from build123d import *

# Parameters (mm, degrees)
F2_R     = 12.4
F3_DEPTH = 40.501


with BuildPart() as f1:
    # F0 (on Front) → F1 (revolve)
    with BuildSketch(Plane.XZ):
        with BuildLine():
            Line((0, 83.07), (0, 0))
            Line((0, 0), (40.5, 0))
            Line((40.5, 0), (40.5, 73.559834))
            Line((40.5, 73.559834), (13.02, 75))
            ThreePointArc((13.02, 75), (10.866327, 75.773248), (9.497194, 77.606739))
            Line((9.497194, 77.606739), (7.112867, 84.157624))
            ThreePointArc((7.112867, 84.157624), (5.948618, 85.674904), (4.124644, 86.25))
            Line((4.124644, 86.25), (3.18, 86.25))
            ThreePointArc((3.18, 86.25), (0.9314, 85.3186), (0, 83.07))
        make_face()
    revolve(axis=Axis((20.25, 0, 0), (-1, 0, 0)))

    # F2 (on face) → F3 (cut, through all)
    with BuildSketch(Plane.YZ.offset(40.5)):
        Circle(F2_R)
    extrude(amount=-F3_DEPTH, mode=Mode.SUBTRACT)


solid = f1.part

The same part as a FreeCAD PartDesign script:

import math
import FreeCAD as App
import Part
import Sketcher
Q = App.Units.Quantity

doc = App.newDocument("Part")
body = doc.addObject("PartDesign::Body", "Body")

# Sketch on XZ plane
sketch1 = body.newObject("Sketcher::SketchObject", "Sketch")
sketch1.AttachmentSupport = (doc.getObject("XZ_Plane"), [""])
sketch1.MapMode = "FlatFace"
sketch1.addGeometry([
    Part.LineSegment(App.Vector(0, 83.07, 0), App.Vector(0, 0, 0)),  # 0
    Part.LineSegment(App.Vector(0, 0, 0), App.Vector(40.5, 0, 0)),  # 1
    Part.LineSegment(App.Vector(40.5, 0, 0), App.Vector(40.5, 73.559834, 0)),  # 2
    Part.LineSegment(App.Vector(40.5, 73.559834, 0), App.Vector(13.02, 75, 0)),  # 3
    Part.ArcOfCircle(Part.Circle(App.Vector(13.227775, 78.964561, 0), App.Vector(0, 0, 1), 3.970002), math.radians(-159.999981), math.radians(-93.000012)),  # 4
    Part.LineSegment(App.Vector(9.497194, 77.606739, 0), App.Vector(7.112867, 84.157624, 0)),  # 5
    Part.ArcOfCircle(Part.Circle(App.Vector(4.124647, 83.070003, 0), App.Vector(0, 0, 1), 3.179997), math.radians(19.99996), math.radians(90.000047)),  # 6
    Part.LineSegment(App.Vector(4.124644, 86.25, 0), App.Vector(3.18, 86.25, 0)),  # 7
    Part.ArcOfCircle(Part.Circle(App.Vector(3.179999, 83.070001, 0), App.Vector(0, 0, 1), 3.179999), math.radians(89.999973), math.radians(180.000027)),  # 8
], False)
sketch1.addConstraint([
    Sketcher.Constraint("Coincident", 0, 2, 1, 1),
    Sketcher.Constraint("Coincident", 1, 2, 2, 1),
    Sketcher.Constraint("Coincident", 2, 2, 3, 1),
    Sketcher.Constraint("Tangent", 3, 2, 4, 2),
    Sketcher.Constraint("Tangent", 4, 1, 5, 1),
    Sketcher.Constraint("Tangent", 5, 2, 6, 1),
    Sketcher.Constraint("Tangent", 6, 2, 7, 1),
    Sketcher.Constraint("Tangent", 7, 2, 8, 1),
    Sketcher.Constraint("Tangent", 8, 2, 0, 1),
    Sketcher.Constraint("Vertical", 0),
    Sketcher.Constraint("Horizontal", 1),
    Sketcher.Constraint("Vertical", 2),
    Sketcher.Constraint("Horizontal", 7),
    Sketcher.Constraint("Coincident", 0, 2, -1, 1),
    Sketcher.Constraint("Equal", 6, 8),
    Sketcher.Constraint("Angle", 3, Q("177 deg")),
    Sketcher.Constraint("Angle", 5, Q("109.999999 deg")),
    Sketcher.Constraint("Radius", 4, 3.970002),
    Sketcher.Constraint("Radius", 8, 3.179999),
    Sketcher.Constraint("DistanceX", 1, 1, 1, 2, 40.5),
    Sketcher.Constraint("DistanceY", -1, 1, 3, 2, 75.0),
    Sketcher.Constraint("DistanceY", 0, 2, 0, 1, 83.07),
    Sketcher.Constraint("DistanceX", -1, 1, 3, 2, 13.02),
])
revolution = body.newObject("PartDesign::Revolution", "Revolution")
revolution.Profile = sketch1
revolution.ReferenceAxis = (sketch1, ["H_Axis"])
revolution.Angle = 360

# Sketch on YZ plane
sketch2 = body.newObject("Sketcher::SketchObject", "Sketch001")
sketch2.AttachmentSupport = (doc.getObject("YZ_Plane"), [""])
sketch2.MapMode = "FlatFace"
sketch2.AttachmentOffset = App.Placement(App.Vector(0, 0, 40.5), App.Rotation())
sketch2.addGeometry(Part.Circle(App.Vector(0, 0, 0), App.Vector(0, 0, 1), 12.4), False)
sketch2.addConstraint([
    Sketcher.Constraint("Coincident", 0, 3, -1, 1),
    Sketcher.Constraint("Diameter", 0, 24.8),
])
pocket1 = body.newObject("PartDesign::Pocket", "Pocket")
pocket1.Profile = sketch2
pocket1.Type = "ThroughAll"

doc.recompute()
